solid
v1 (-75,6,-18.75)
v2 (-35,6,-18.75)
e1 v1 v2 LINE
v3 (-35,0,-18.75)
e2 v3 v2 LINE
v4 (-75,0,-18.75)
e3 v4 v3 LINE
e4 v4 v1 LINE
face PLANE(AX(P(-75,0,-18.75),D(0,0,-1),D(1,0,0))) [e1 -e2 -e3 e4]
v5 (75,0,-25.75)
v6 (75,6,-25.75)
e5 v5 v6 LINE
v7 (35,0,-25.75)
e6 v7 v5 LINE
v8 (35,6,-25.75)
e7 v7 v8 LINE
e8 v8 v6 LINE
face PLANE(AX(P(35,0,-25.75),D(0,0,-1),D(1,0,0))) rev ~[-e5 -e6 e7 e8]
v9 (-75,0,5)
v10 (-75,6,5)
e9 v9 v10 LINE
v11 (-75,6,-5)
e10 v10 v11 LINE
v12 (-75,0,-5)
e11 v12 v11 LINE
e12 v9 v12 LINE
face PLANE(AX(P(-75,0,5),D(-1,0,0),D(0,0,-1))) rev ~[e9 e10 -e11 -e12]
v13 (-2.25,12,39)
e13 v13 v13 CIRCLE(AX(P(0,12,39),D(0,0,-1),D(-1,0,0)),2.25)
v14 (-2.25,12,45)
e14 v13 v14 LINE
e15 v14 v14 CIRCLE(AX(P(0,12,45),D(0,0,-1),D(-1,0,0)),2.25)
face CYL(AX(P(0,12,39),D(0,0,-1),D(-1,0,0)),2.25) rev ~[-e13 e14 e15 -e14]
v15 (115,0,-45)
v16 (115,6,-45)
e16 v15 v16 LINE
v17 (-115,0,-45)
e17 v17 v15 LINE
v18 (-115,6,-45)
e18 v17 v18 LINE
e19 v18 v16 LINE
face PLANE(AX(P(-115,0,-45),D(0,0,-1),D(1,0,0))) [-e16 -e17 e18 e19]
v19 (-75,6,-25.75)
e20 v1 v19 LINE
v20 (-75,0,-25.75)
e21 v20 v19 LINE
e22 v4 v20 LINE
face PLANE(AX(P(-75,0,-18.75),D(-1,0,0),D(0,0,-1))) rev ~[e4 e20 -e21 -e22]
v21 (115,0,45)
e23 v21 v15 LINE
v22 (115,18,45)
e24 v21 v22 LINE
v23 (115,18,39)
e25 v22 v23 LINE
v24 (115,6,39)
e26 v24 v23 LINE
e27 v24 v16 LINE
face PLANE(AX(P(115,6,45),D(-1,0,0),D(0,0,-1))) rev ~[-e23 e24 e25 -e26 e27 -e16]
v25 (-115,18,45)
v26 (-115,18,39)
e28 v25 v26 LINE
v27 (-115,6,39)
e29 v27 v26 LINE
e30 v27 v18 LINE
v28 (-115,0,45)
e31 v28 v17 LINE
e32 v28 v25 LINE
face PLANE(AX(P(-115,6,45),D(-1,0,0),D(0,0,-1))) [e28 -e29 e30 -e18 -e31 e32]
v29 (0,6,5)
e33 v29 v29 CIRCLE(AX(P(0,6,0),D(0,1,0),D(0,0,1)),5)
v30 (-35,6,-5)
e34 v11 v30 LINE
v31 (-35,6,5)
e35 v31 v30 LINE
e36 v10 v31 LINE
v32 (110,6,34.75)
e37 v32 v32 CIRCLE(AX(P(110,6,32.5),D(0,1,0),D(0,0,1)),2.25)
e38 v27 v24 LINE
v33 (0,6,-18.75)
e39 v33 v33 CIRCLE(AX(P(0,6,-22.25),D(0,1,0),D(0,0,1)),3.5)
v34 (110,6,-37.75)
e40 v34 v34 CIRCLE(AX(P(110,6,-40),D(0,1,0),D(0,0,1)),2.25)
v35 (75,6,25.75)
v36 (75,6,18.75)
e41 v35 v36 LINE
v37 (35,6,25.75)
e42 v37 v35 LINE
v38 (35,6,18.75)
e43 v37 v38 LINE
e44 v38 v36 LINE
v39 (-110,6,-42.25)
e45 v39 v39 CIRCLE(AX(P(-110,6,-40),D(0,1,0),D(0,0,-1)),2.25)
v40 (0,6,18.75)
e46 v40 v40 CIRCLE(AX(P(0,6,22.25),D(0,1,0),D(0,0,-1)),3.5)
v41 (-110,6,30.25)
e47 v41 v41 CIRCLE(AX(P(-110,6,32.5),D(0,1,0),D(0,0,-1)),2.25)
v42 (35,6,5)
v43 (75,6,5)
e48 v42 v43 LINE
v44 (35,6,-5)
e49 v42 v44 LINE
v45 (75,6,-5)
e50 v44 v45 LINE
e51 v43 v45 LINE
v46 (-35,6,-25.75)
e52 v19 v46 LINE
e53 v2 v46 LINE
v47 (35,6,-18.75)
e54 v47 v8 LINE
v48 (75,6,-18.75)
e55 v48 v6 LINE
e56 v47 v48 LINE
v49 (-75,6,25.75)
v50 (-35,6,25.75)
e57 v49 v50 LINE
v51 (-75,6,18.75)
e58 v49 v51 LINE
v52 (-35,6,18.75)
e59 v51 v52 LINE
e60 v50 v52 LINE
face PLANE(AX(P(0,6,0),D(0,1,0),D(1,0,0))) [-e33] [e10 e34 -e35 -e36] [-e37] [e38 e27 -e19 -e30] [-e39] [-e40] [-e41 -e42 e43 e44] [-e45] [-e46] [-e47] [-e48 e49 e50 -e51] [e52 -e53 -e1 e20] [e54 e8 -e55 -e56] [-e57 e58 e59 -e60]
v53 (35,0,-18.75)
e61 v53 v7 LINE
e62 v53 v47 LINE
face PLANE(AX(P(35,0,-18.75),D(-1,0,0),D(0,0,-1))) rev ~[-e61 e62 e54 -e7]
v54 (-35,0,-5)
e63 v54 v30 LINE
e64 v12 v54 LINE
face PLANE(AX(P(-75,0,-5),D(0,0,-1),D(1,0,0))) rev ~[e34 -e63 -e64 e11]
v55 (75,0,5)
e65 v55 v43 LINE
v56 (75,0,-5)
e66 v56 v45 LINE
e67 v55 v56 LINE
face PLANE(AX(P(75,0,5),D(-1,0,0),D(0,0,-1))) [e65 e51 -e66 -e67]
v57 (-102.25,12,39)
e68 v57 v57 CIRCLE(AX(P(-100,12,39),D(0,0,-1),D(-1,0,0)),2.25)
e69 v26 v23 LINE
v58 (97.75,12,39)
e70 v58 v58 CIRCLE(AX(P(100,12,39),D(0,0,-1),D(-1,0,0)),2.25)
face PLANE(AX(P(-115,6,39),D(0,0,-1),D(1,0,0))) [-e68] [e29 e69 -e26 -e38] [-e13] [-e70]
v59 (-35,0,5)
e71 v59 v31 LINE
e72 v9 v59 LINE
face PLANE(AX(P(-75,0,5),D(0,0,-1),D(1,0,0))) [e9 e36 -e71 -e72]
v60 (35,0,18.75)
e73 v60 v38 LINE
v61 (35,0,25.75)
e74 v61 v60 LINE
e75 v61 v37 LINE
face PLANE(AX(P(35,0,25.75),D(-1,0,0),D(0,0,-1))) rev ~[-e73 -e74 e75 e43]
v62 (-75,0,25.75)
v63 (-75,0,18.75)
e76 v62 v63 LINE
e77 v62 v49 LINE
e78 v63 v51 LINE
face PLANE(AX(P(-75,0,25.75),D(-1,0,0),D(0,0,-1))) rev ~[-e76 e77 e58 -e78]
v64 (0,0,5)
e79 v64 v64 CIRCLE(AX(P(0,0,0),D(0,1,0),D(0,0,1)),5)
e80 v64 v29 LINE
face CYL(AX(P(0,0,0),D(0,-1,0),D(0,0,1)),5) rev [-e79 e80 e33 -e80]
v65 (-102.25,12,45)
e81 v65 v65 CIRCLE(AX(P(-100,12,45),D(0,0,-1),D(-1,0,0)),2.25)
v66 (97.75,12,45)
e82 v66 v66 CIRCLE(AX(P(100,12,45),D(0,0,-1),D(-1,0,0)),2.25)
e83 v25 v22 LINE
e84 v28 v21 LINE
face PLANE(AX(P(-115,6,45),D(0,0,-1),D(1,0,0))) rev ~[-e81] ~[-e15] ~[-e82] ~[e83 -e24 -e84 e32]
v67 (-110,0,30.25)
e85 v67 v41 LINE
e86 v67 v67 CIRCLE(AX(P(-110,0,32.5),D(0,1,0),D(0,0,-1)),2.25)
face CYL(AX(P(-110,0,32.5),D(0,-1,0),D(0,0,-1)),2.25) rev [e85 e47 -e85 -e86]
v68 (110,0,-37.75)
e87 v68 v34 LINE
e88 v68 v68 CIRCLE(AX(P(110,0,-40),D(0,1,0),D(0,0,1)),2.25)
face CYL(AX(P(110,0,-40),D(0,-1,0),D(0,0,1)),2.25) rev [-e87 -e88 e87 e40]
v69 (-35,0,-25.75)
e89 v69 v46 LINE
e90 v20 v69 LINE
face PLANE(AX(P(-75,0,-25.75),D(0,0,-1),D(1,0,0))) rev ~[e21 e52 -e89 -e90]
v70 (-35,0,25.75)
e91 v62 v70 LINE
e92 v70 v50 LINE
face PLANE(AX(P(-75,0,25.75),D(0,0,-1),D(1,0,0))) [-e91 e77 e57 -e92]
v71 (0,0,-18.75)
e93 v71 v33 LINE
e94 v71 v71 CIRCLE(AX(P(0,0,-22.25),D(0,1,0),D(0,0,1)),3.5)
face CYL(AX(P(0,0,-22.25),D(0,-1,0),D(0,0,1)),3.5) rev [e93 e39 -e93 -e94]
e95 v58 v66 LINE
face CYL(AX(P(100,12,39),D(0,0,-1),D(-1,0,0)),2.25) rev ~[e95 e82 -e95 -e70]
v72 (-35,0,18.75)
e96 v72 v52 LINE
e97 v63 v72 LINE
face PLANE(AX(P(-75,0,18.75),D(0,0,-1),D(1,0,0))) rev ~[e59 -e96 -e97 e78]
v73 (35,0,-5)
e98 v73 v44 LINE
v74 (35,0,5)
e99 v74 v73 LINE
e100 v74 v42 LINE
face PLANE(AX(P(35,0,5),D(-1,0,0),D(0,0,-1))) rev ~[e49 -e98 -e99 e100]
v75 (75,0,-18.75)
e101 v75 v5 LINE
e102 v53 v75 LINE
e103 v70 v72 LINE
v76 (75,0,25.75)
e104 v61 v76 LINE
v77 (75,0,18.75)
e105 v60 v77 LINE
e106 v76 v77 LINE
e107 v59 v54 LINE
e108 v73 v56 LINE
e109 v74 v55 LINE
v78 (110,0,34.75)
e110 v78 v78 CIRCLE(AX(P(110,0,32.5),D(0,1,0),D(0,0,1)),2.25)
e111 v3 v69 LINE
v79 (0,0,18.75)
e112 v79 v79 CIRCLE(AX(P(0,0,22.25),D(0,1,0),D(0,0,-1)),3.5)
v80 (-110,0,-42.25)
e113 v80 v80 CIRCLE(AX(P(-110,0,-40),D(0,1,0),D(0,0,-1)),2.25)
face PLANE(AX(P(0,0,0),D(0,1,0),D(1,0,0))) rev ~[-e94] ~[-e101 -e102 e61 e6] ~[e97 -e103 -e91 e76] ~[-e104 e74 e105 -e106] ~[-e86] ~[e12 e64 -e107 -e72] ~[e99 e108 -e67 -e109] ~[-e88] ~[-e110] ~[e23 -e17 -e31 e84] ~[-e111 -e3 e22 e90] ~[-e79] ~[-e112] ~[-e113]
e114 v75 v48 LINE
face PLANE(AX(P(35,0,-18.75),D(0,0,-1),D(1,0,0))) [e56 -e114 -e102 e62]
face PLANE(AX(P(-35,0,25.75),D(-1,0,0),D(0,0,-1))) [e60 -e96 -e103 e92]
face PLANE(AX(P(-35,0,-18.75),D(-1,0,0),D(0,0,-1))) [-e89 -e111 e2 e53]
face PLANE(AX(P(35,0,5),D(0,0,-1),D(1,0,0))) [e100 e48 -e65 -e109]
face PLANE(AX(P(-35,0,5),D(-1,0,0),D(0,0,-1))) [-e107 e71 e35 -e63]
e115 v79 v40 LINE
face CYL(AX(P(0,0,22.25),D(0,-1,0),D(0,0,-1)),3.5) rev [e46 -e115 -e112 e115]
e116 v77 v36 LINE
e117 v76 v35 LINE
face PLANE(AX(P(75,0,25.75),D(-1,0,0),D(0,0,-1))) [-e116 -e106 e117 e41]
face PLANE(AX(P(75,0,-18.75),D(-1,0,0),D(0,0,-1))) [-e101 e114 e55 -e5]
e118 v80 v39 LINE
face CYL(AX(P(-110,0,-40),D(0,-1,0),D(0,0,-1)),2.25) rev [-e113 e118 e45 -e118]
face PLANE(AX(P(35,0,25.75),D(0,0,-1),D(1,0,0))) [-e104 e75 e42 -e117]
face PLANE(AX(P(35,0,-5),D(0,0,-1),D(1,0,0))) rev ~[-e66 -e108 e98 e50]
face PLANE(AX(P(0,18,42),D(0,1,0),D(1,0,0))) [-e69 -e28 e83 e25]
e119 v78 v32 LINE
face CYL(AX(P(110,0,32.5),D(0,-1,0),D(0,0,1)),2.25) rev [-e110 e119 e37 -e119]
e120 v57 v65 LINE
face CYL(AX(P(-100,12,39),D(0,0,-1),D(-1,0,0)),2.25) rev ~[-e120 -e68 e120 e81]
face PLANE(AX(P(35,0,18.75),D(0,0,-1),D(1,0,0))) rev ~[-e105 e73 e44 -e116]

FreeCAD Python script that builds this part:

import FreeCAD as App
import Part
import Sketcher

V = App.Vector

doc = App.newDocument("Part")
body = doc.addObject("PartDesign::Body", "Body")

# Sketch on XZ plane
sketch1 = doc.addObject("Sketcher::SketchObject", "Sketch")
body.addObject(sketch1)
sketch1.AttachmentSupport = (doc.XZ_Plane, [""])
sketch1.MapMode = "FlatFace"
sketch1.addGeometry(Part.LineSegment(V(-115, -45, 0), V(-115, 45, 0)), False)
sketch1.addGeometry(Part.LineSegment(V(-115, 45, 0), V(115, 45, 0)), False)
sketch1.addGeometry(Part.LineSegment(V(115, 45, 0), V(115, -45, 0)), False)
sketch1.addGeometry(Part.LineSegment(V(115, -45, 0), V(-115, -45, 0)), False)
sketch1.addGeometry(Part.Circle(V(-110, 32.5, 0), V(0, 0, 1), 2.25), False)
sketch1.addGeometry(Part.LineSegment(V(-35, 25.75, 0), V(-75, 25.75, 0)), False)
sketch1.addGeometry(Part.LineSegment(V(-75, 25.75, 0), V(-75, 18.75, 0)), False)
sketch1.addGeometry(Part.LineSegment(V(-75, 18.75, 0), V(-35, 18.75, 0)), False)
sketch1.addGeometry(Part.LineSegment(V(-35, 18.75, 0), V(-35, 25.75, 0)), False)
sketch1.addGeometry(Part.LineSegment(V(-35, 5, 0), V(-75, 5, 0)), False)
sketch1.addGeometry(Part.LineSegment(V(-75, 5, 0), V(-75, -5, 0)), False)
sketch1.addGeometry(Part.LineSegment(V(-75, -5, 0), V(-35, -5, 0)), False)
sketch1.addGeometry(Part.LineSegment(V(-35, -5, 0), V(-35, 5, 0)), False)
sketch1.addGeometry(Part.Circle(V(0, 22.25, 0), V(0, 0, 1), 3.5), False)
sketch1.addGeometry(Part.LineSegment(V(75, 25.75, 0), V(35, 25.75, 0)), False)
sketch1.addGeometry(Part.LineSegment(V(35, 25.75, 0), V(35, 18.75, 0)), False)
sketch1.addGeometry(Part.LineSegment(V(35, 18.75, 0), V(75, 18.75, 0)), False)
sketch1.addGeometry(Part.LineSegment(V(75, 18.75, 0), V(75, 25.75, 0)), False)
sketch1.addGeometry(Part.Circle(V(110, 32.5, 0), V(0, 0, 1), 2.25), False)
sketch1.addGeometry(Part.Circle(V(0, 0, 0), V(0, 0, 1), 5), False)
sketch1.addGeometry(Part.LineSegment(V(75, 5, 0), V(35, 5, 0)), False)
sketch1.addGeometry(Part.LineSegment(V(35, 5, 0), V(35, -5, 0)), False)
sketch1.addGeometry(Part.LineSegment(V(35, -5, 0), V(75, -5, 0)), False)
sketch1.addGeometry(Part.LineSegment(V(75, -5, 0), V(75, 5, 0)), False)
sketch1.addGeometry(Part.LineSegment(V(-35, -18.75, 0), V(-75, -18.75, 0)), False)
sketch1.addGeometry(Part.LineSegment(V(-75, -18.75, 0), V(-75, -25.75, 0)), False)
sketch1.addGeometry(Part.LineSegment(V(-75, -25.75, 0), V(-35, -25.75, 0)), False)
sketch1.addGeometry(Part.LineSegment(V(-35, -25.75, 0), V(-35, -18.75, 0)), False)
sketch1.addGeometry(Part.Circle(V(-110, -40, 0), V(0, 0, 1), 2.25), False)
sketch1.addGeometry(Part.Circle(V(0, -22.25, 0), V(0, 0, 1), 3.5), False)
sketch1.addGeometry(Part.LineSegment(V(75, -18.75, 0), V(35, -18.75, 0)), False)
sketch1.addGeometry(Part.LineSegment(V(35, -18.75, 0), V(35, -25.75, 0)), False)
sketch1.addGeometry(Part.LineSegment(V(35, -25.75, 0), V(75, -25.75, 0)), False)
sketch1.addGeometry(Part.LineSegment(V(75, -25.75, 0), V(75, -18.75, 0)), False)
sketch1.addGeometry(Part.Circle(V(110, -40, 0), V(0, 0, 1), 2.25), False)
sketch1.addConstraint(Sketcher.Constraint("Coincident", 0, 2, 1, 1))
sketch1.addConstraint(Sketcher.Constraint("Coincident", 1, 2, 2, 1))
sketch1.addConstraint(Sketcher.Constraint("Coincident", 2, 2, 3, 1))
sketch1.addConstraint(Sketcher.Constraint("Coincident", 3, 2, 0, 1))
sketch1.addConstraint(Sketcher.Constraint("Coincident", 5, 2, 6, 1))
sketch1.addConstraint(Sketcher.Constraint("Coincident", 6, 2, 7, 1))
sketch1.addConstraint(Sketcher.Constraint("Coincident", 7, 2, 8, 1))
sketch1.addConstraint(Sketcher.Constraint("Coincident", 8, 2, 5, 1))
sketch1.addConstraint(Sketcher.Constraint("Coincident", 9, 2, 10, 1))
sketch1.addConstraint(Sketcher.Constraint("Coincident", 10, 2, 11, 1))
sketch1.addConstraint(Sketcher.Constraint("Coincident", 11, 2, 12, 1))
sketch1.addConstraint(Sketcher.Constraint("Coincident", 12, 2, 9, 1))
sketch1.addConstraint(Sketcher.Constraint("Coincident", 14, 2, 15, 1))
sketch1.addConstraint(Sketcher.Constraint("Coincident", 15, 2, 16, 1))
sketch1.addConstraint(Sketcher.Constraint("Coincident", 16, 2, 17, 1))
sketch1.addConstraint(Sketcher.Constraint("Coincident", 17, 2, 14, 1))
sketch1.addConstraint(Sketcher.Constraint("Coincident", 20, 2, 21, 1))
sketch1.addConstraint(Sketcher.Constraint("Coincident", 21, 2, 22, 1))
sketch1.addConstraint(Sketcher.Constraint("Coincident", 22, 2, 23, 1))
sketch1.addConstraint(Sketcher.Constraint("Coincident", 23, 2, 20, 1))
sketch1.addConstraint(Sketcher.Constraint("Coincident", 24, 2, 25, 1))
sketch1.addConstraint(Sketcher.Constraint("Coincident", 25, 2, 26, 1))
sketch1.addConstraint(Sketcher.Constraint("Coincident", 26, 2, 27, 1))
sketch1.addConstraint(Sketcher.Constraint("Coincident", 27, 2, 24, 1))
sketch1.addConstraint(Sketcher.Constraint("Coincident", 30, 2, 31, 1))
sketch1.addConstraint(Sketcher.Constraint("Coincident", 31, 2, 32, 1))
sketch1.addConstraint(Sketcher.Constraint("Coincident", 32, 2, 33, 1))
sketch1.addConstraint(Sketcher.Constraint("Coincident", 33, 2, 30, 1))
sketch1.addConstraint(Sketcher.Constraint("Vertical", 0))
sketch1.addConstraint(Sketcher.Constraint("Horizontal", 1))
sketch1.addConstraint(Sketcher.Constraint("Vertical", 2))
sketch1.addConstraint(Sketcher.Constraint("Horizontal", 3))
sketch1.addConstraint(Sketcher.Constraint("Horizontal", 5))
sketch1.addConstraint(Sketcher.Constraint("Vertical", 6))
sketch1.addConstraint(Sketcher.Constraint("Horizontal", 7))
sketch1.addConstraint(Sketcher.Constraint("Vertical", 8))
sketch1.addConstraint(Sketcher.Constraint("Horizontal", 9))
sketch1.addConstraint(Sketcher.Constraint("Vertical", 10))
sketch1.addConstraint(Sketcher.Constraint("Horizontal", 11))
sketch1.addConstraint(Sketcher.Constraint("Vertical", 12))
sketch1.addConstraint(Sketcher.Constraint("Horizontal", 14))
sketch1.addConstraint(Sketcher.Constraint("Vertical", 15))
sketch1.addConstraint(Sketcher.Constraint("Horizontal", 16))
sketch1.addConstraint(Sketcher.Constraint("Vertical", 17))
sketch1.addConstraint(Sketcher.Constraint("Horizontal", 20))
sketch1.addConstraint(Sketcher.Constraint("Vertical", 21))
sketch1.addConstraint(Sketcher.Constraint("Horizontal", 22))
sketch1.addConstraint(Sketcher.Constraint("Vertical", 23))
sketch1.addConstraint(Sketcher.Constraint("Horizontal", 24))
sketch1.addConstraint(Sketcher.Constraint("Vertical", 25))
sketch1.addConstraint(Sketcher.Constraint("Horizontal", 26))
sketch1.addConstraint(Sketcher.Constraint("Vertical", 27))
sketch1.addConstraint(Sketcher.Constraint("Horizontal", 30))
sketch1.addConstraint(Sketcher.Constraint("Vertical", 31))
sketch1.addConstraint(Sketcher.Constraint("Horizontal", 32))
sketch1.addConstraint(Sketcher.Constraint("Vertical", 33))
sketch1.addConstraint(Sketcher.Constraint("Coincident", 19, 3, -1, 1))
sketch1.addConstraint(Sketcher.Constraint("Equal", 4, 18))
sketch1.addConstraint(Sketcher.Constraint("Equal", 18, 28))
sketch1.addConstraint(Sketcher.Constraint("Equal", 13, 29))
sketch1.addConstraint(Sketcher.Constraint("Equal", 28, 34))
sketch1.addConstraint(Sketcher.Constraint("Symmetric", 13, 3, 29, 3, -1, 1))
sketch1.addConstraint(Sketcher.Constraint("Symmetric", 0, 2, 2, 2, -1, 1))
sketch1.addConstraint(Sketcher.Constraint("Symmetric", 11, 2, 20, 2, -1, 1))
sketch1.addConstraint(Sketcher.Constraint("Symmetric", 9, 2, 22, 2, -1, 1))
sketch1.addConstraint(Sketcher.Constraint("Symmetric", 16, 2, 24, 2, -1, 1))
sketch1.addConstraint(Sketcher.Constraint("Symmetric", 14, 2, 26, 2, -1, 1))
sketch1.addConstraint(Sketcher.Constraint("Symmetric", 7, 2, 30, 2, -1, 1))
sketch1.addConstraint(Sketcher.Constraint("Symmetric", 5, 2, 32, 2, -1, 1))
sketch1.addConstraint(Sketcher.Constraint("Symmetric", 4, 3, 18, 3, -2))
sketch1.addConstraint(Sketcher.Constraint("Symmetric", 28, 3, 34, 3, -2))
sketch1.addConstraint(Sketcher.Constraint("Symmetric", 8, 2, 14, 2, -2))
sketch1.addConstraint(Sketcher.Constraint("Symmetric", 6, 2, 16, 2, -2))
sketch1.addConstraint(Sketcher.Constraint("PointOnObject", 13, 3, -2))
sketch1.addConstraint(Sketcher.Constraint("Horizontal", 12, 2, 20, 2))
sketch1.addConstraint(Sketcher.Constraint("Vertical", 4, 3, 28, 3))
sketch1.addConstraint(Sketcher.Constraint("Vertical", 6, 2, 9, 2))
sketch1.addConstraint(Sketcher.Constraint("Vertical", 8, 2, 11, 2))
sketch1.addConstraint(Sketcher.Constraint("Diameter", 13, 7.0))
sketch1.addConstraint(Sketcher.Constraint("Diameter", 19, 10.0))
sketch1.addConstraint(Sketcher.Constraint("Diameter", 4, 4.5))
sketch1.addConstraint(Sketcher.Constraint("DistanceX", 1, 1, 1, 2, 230.0))
sketch1.addConstraint(Sketcher.Constraint("DistanceX", 5, 2, 5, 1, 40.0))
sketch1.addConstraint(Sketcher.Constraint("DistanceY", 0, 1, 0, 2, 90.0))
sketch1.addConstraint(Sketcher.Constraint("DistanceY", 6, 2, 6, 1, 7.0))
sketch1.addConstraint(Sketcher.Constraint("DistanceY", 10, 2, 10, 1, 10.0))
sketch1.addConstraint(Sketcher.Constraint("DistanceX", 4, 3, -1, 1, 110.0))
sketch1.addConstraint(Sketcher.Constraint("DistanceY", 28, 3, -1, 1, 40.0))
sketch1.addConstraint(Sketcher.Constraint("DistanceX", 5, 2, -1, 1, 75.0))
sketch1.addConstraint(Sketcher.Constraint("DistanceY", 29, 3, 7, 2, 41.0))
sketch1.addConstraint(Sketcher.Constraint("DistanceY", -1, 1, 4, 3, 32.5))
sketch1.addConstraint(Sketcher.Constraint("DistanceY", 29, 3, 13, 3, 44.5))
pad1 = doc.addObject("PartDesign::Pad", "Pad")
body.addObject(pad1)
pad1.Profile = sketch1
pad1.Length = 6
pad1.Reversed = True

# Sketch on XZ plane
sketch2 = doc.addObject("Sketcher::SketchObject", "Sketch001")
body.addObject(sketch2)
sketch2.AttachmentSupport = (doc.XZ_Plane, [""])
sketch2.MapMode = "FlatFace"
sketch2.AttachmentOffset = App.Placement(V(0, 0, -6), App.Rotation())
sketch2.addGeometry(Part.LineSegment(V(-115, 39, 0), V(-115, 45, 0)), False)
sketch2.addGeometry(Part.LineSegment(V(-115, 45, 0), V(115, 45, 0)), False)
sketch2.addGeometry(Part.LineSegment(V(115, 45, 0), V(115, 39, 0)), False)
sketch2.addGeometry(Part.LineSegment(V(115, 39, 0), V(-115, 39, 0)), False)
sketch2.addConstraint(Sketcher.Constraint("Coincident", 0, 2, 1, 1))
sketch2.addConstraint(Sketcher.Constraint("Coincident", 1, 2, 2, 1))
sketch2.addConstraint(Sketcher.Constraint("Coincident", 2, 2, 3, 1))
sketch2.addConstraint(Sketcher.Constraint("Coincident", 3, 2, 0, 1))
sketch2.addConstraint(Sketcher.Constraint("Vertical", 0))
sketch2.addConstraint(Sketcher.Constraint("Horizontal", 1))
sketch2.addConstraint(Sketcher.Constraint("Vertical", 2))
sketch2.addConstraint(Sketcher.Constraint("Horizontal", 3))
sketch2.addConstraint(Sketcher.Constraint("DistanceX", 1, 1, 1, 2, 230.0))
sketch2.addConstraint(Sketcher.Constraint("DistanceY", 0, 1, 0, 2, 6.0))
sketch2.addConstraint(Sketcher.Constraint("DistanceX", 0, 2, -1, 1, 115.0))
sketch2.addConstraint(Sketcher.Constraint("DistanceY", -1, 1, 0, 2, 45.0))
pad2 = doc.addObject("PartDesign::Pad", "Pad001")
body.addObject(pad2)
pad2.Profile = sketch2
pad2.Length = 12
pad2.Reversed = True

# Sketch on XY plane
sketch3 = doc.addObject("Sketcher::SketchObject", "Sketch002")
body.addObject(sketch3)
sketch3.AttachmentSupport = (doc.XY_Plane, [""])
sketch3.MapMode = "FlatFace"
sketch3.AttachmentOffset = App.Placement(V(0, 0, 39), App.Rotation())
sketch3.addGeometry(Part.Circle(V(0, 12, 0), V(0, 0, 1), 2.25), False)
sketch3.addConstraint(Sketcher.Constraint("PointOnObject", 0, 3, -2))
sketch3.addConstraint(Sketcher.Constraint("Diameter", 0, 4.5))
sketch3.addConstraint(Sketcher.Constraint("DistanceY", -1, 1, 0, 3, 12.0))
pocket1 = doc.addObject("PartDesign::Pocket", "Pocket")
body.addObject(pocket1)
pocket1.Profile = sketch3
pocket1.Type = "UpToFirst"
pocket1.Reversed = True

# Sketch on XY plane
sketch4 = doc.addObject("Sketcher::SketchObject", "Sketch003")
body.addObject(sketch4)
sketch4.AttachmentSupport = (doc.XY_Plane, [""])
sketch4.MapMode = "FlatFace"
sketch4.AttachmentOffset = App.Placement(V(0, 0, 39), App.Rotation())
sketch4.addGeometry(Part.Circle(V(-100, 12, 0), V(0, 0, 1), 2.25), False)
sketch4.addConstraint(Sketcher.Constraint("Diameter", 0, 4.5))
sketch4.addConstraint(Sketcher.Constraint("DistanceX", 0, 3, -1, 1, 100.0))
sketch4.addConstraint(Sketcher.Constraint("DistanceY", -1, 1, 0, 3, 12.0))
pocket2 = doc.addObject("PartDesign::Pocket", "Pocket001")
body.addObject(pocket2)
pocket2.Profile = sketch4
pocket2.Type = "UpToFirst"
pocket2.Reversed = True

# Sketch on XY plane
sketch5 = doc.addObject("Sketcher::SketchObject", "Sketch004")
body.addObject(sketch5)
sketch5.AttachmentSupport = (doc.XY_Plane, [""])
sketch5.MapMode = "FlatFace"
sketch5.AttachmentOffset = App.Placement(V(0, 0, 39), App.Rotation())
sketch5.addGeometry(Part.Circle(V(100, 12, 0), V(0, 0, 1), 2.25), False)
sketch5.addConstraint(Sketcher.Constraint("Diameter", 0, 4.5))
sketch5.addConstraint(Sketcher.Constraint("DistanceX", -1, 1, 0, 3, 100.0))
sketch5.addConstraint(Sketcher.Constraint("DistanceY", -1, 1, 0, 3, 12.0))
pocket3 = doc.addObject("PartDesign::Pocket", "Pocket002")
body.addObject(pocket3)
pocket3.Profile = sketch5
pocket3.Type = "UpToFirst"
pocket3.Reversed = True

doc.recompute()
